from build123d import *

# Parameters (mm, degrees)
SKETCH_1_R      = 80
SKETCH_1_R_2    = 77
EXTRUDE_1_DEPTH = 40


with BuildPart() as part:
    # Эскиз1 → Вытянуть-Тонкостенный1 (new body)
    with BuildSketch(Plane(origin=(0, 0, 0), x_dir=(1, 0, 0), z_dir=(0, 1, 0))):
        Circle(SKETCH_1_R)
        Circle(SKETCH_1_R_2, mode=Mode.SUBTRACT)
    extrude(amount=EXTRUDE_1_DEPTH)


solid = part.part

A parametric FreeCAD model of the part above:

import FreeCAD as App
import Part
import Sketcher

V = App.Vector

doc = App.newDocument("Part")
body = doc.addObject("PartDesign::Body", "Body")

sketch1 = doc.addObject("Sketcher::SketchObject", "Sketch")
body.addObject(sketch1)
sketch1.AttachmentSupport = (doc.XZ_Plane, [""])
sketch1.MapMode = "FlatFace"
sketch1.addGeometry([
    Part.Circle(V(0, 0, 0), V(0, 0, 1), 80),
    Part.Circle(V(0, 0, 0), V(0, 0, 1), 77),
], False)
sketch1.addConstraint([
    Sketcher.Constraint("Coincident", 0, 3, -1, 1),
    Sketcher.Constraint("Coincident", 1, 3, -1, 1),
    Sketcher.Constraint("Diameter", 0, 160.0),
    Sketcher.Constraint("Diameter", 1, 154.0),
])
pad1 = doc.addObject("PartDesign::Pad", "Pad")
body.addObject(pad1)
pad1.Profile = sketch1
pad1.Length = 40
pad1.Reversed = True

doc.recompute()
